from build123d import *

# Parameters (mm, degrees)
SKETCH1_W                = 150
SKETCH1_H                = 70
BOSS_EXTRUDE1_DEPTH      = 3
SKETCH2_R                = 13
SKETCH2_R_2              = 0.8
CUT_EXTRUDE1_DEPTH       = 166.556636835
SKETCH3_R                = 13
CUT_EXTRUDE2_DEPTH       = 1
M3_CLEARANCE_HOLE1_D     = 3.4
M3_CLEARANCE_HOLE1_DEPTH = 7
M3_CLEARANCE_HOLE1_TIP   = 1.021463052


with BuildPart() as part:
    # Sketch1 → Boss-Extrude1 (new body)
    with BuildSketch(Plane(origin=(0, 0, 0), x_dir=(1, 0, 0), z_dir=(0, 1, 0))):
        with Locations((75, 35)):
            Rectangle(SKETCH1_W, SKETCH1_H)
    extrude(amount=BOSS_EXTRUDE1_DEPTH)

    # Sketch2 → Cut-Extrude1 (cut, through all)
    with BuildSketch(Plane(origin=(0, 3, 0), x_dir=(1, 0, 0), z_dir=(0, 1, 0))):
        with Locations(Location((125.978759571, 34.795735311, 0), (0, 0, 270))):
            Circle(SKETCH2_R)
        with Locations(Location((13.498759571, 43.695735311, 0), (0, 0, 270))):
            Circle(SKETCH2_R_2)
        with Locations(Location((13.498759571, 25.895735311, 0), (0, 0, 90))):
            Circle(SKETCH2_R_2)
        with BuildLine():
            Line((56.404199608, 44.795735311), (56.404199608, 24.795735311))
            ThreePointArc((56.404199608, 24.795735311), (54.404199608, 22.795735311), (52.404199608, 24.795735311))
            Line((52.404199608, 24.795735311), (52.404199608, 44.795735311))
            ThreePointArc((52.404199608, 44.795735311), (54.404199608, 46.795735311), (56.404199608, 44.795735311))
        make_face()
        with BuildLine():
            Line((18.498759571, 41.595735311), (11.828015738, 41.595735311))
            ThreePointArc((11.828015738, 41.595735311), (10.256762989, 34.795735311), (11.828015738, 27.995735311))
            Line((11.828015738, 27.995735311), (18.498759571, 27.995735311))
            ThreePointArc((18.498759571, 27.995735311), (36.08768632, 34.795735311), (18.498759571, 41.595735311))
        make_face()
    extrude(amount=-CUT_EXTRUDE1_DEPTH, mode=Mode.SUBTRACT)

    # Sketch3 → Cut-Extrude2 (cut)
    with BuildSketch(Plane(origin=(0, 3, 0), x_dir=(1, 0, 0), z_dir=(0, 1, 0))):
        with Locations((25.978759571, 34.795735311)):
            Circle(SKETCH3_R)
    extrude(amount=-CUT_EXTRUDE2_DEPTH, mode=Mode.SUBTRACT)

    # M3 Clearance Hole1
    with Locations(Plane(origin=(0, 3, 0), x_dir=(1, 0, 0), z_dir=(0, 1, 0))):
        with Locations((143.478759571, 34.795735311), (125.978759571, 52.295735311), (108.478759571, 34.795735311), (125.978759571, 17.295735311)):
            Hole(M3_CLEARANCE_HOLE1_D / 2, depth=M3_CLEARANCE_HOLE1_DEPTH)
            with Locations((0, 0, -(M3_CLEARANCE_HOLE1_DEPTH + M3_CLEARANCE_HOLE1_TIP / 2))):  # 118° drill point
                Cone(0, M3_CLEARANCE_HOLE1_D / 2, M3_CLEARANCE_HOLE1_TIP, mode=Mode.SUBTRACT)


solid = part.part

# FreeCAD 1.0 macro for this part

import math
import FreeCAD as App
import Part
import Sketcher


def add_polygon(sketch, points):
    """Adds a closed chain of lines whose ends are joined by coincident constraints."""
    first, n = sketch.GeometryCount, len(points)
    for a, b in zip(points, points[1:] + points[:1]):
        sketch.addGeometry(Part.LineSegment(App.Vector(*a, 0), App.Vector(*b, 0)), False)
    for i in range(n):
        sketch.addConstraint(Sketcher.Constraint("Coincident", first + i, 2, first + (i + 1) % n, 1))

doc = App.newDocument("Part")
body = doc.addObject("PartDesign::Body", "Body")

# Sketch on XZ plane
sketch1 = body.newObject("Sketcher::SketchObject", "Sketch")
sketch1.AttachmentSupport = (doc.getObject("XZ_Plane"), [""])
sketch1.MapMode = "FlatFace"
add_polygon(sketch1, [(0, -70), (0, 0), (150, 0), (150, -70)])  # lines 0-3
sketch1.addConstraint(Sketcher.Constraint("Vertical", 0))
sketch1.addConstraint(Sketcher.Constraint("Horizontal", 1))
sketch1.addConstraint(Sketcher.Constraint("Vertical", 2))
sketch1.addConstraint(Sketcher.Constraint("Horizontal", 3))
sketch1.addConstraint(Sketcher.Constraint("Coincident", 0, 2, -1, 1))
sketch1.addConstraint(Sketcher.Constraint("DistanceX", 1, 1, 1, 2, 150.0))
sketch1.addConstraint(Sketcher.Constraint("DistanceY", 0, 1, 0, 2, 70.0))
pad1 = body.newObject("PartDesign::Pad", "Pad")
pad1.Profile = sketch1
pad1.Length = 3
pad1.Reversed = True

# Sketch on XZ plane
sketch2 = body.newObject("Sketcher::SketchObject", "Sketch001")
sketch2.AttachmentSupport = (doc.getObject("XZ_Plane"), [""])
sketch2.MapMode = "FlatFace"
sketch2.AttachmentOffset = App.Placement(App.Vector(0, 0, -3), App.Rotation())
sketch2.addGeometry(Part.Circle(App.Vector(126, -34.8, 0), App.Vector(0, 0, 1), 13), False)
sketch2.addGeometry(Part.Circle(App.Vector(13.5, -43.7, 0), App.Vector(0, 0, 1), 0.8), False)
sketch2.addGeometry(Part.Circle(App.Vector(13.5, -25.9, 0), App.Vector(0, 0, 1), 0.8), False)
sketch2.addGeometry(Part.LineSegment(App.Vector(56.4, -24.8, 0), App.Vector(56.4, -44.8, 0)), False)
sketch2.addGeometry(Part.ArcOfCircle(Part.Circle(App.Vector(54.4, -44.8, 0), App.Vector(0, 0, 1), 2), math.radians(180), math.radians(360)), False)
sketch2.addGeometry(Part.LineSegment(App.Vector(52.4, -44.8, 0), App.Vector(52.4, -24.8, 0)), False)
sketch2.addGeometry(Part.ArcOfCircle(Part.Circle(App.Vector(54.4, -24.8, 0), App.Vector(0, 0, 1), 2), math.radians(0), math.radians(180)), False)
sketch2.addGeometry(Part.LineSegment(App.Vector(18.5, -41.6, 0), App.Vector(11.8, -41.6, 0)), False)
sketch2.addGeometry(Part.ArcOfCircle(Part.Circle(App.Vector(25.8, -34.8, 0), App.Vector(0, 0, 1), 15.5), math.radians(154), math.radians(206)), False)
sketch2.addGeometry(Part.LineSegment(App.Vector(11.8, -28, 0), App.Vector(18.5, -28, 0)), False)
sketch2.addGeometry(Part.ArcOfCircle(Part.Circle(App.Vector(26, -34.8, 0), App.Vector(0, 0, 1), 10.1), math.radians(-138), math.radians(138)), False)
sketch2.addConstraint(Sketcher.Constraint("Tangent", 3, 2, 4, 2))
sketch2.addConstraint(Sketcher.Constraint("Tangent", 4, 1, 5, 1))
sketch2.addConstraint(Sketcher.Constraint("Tangent", 5, 2, 6, 2))
sketch2.addConstraint(Sketcher.Constraint("Tangent", 6, 1, 3, 1))
sketch2.addConstraint(Sketcher.Constraint("Coincident", 7, 2, 8, 2))
sketch2.addConstraint(Sketcher.Constraint("Coincident", 8, 1, 9, 1))
sketch2.addConstraint(Sketcher.Constraint("Coincident", 9, 2, 10, 2))
sketch2.addConstraint(Sketcher.Constraint("Coincident", 10, 1, 7, 1))
sketch2.addConstraint(Sketcher.Constraint("Vertical", 3))
sketch2.addConstraint(Sketcher.Constraint("Vertical", 5))
sketch2.addConstraint(Sketcher.Constraint("Horizontal", 7))
sketch2.addConstraint(Sketcher.Constraint("Horizontal", 9))
sketch2.addConstraint(Sketcher.Constraint("Equal", 1, 2))
sketch2.addConstraint(Sketcher.Constraint("Horizontal", 0, 3, 8, 3))
sketch2.addConstraint(Sketcher.Constraint("Horizontal", 8, 3, 10, 3))
sketch2.addConstraint(Sketcher.Constraint("Vertical", 1, 3, 2, 3))
sketch2.addConstraint(Sketcher.Constraint("Vertical", 7, 2, 8, 1))
sketch2.addConstraint(Sketcher.Constraint("Diameter", 0, 26.0))
sketch2.addConstraint(Sketcher.Constraint("Radius", 4, 2.0))
sketch2.addConstraint(Sketcher.Constraint("Diameter", 1, 1.6))
sketch2.addConstraint(Sketcher.Constraint("Radius", 8, 15.5))
sketch2.addConstraint(Sketcher.Constraint("DistanceY", 3, 2, 3, 1, 20.0))
sketch2.addConstraint(Sketcher.Constraint("DistanceY", 4, 3, 0, 3, 10.0))
sketch2.addConstraint(Sketcher.Constraint("DistanceX", 2, 3, 9, 2, 5.0))
sketch2.addConstraint(Sketcher.Constraint("DistanceY", 1, 3, 0, 3, 8.9))
sketch2.addConstraint(Sketcher.Constraint("DistanceY", 1, 3, 2, 3, 17.8))
sketch2.addConstraint(Sketcher.Constraint("DistanceY", 1, 3, 7, 2, 2.1))
sketch2.addConstraint(Sketcher.Constraint("DistanceX", 1, 3, 0, 3, 112.48))
sketch2.addConstraint(Sketcher.Constraint("DistanceX", 1, 3, 10, 3, 12.48))
sketch2.addConstraint(Sketcher.Constraint("DistanceX", -1, 1, 4, 3, 54.4042))
sketch2.addConstraint(Sketcher.Constraint("DistanceX", 7, 2, 7, 1, 6.670744))
sketch2.addConstraint(Sketcher.Constraint("DistanceX", -1, 1, 0, 3, 125.97876))
sketch2.addConstraint(Sketcher.Constraint("DistanceY", 0, 3, -1, 1, 34.795735))
pocket1 = body.newObject("PartDesign::Pocket", "Pocket")
pocket1.Profile = sketch2
pocket1.Type = "ThroughAll"
pocket1.Reversed = True

# Sketch on XZ plane
sketch3 = body.newObject("Sketcher::SketchObject", "Sketch002")
sketch3.AttachmentSupport = (doc.getObject("XZ_Plane"), [""])
sketch3.MapMode = "FlatFace"
sketch3.AttachmentOffset = App.Placement(App.Vector(0, 0, -3), App.Rotation())
sketch3.addGeometry(Part.Circle(App.Vector(26, -35, 0), App.Vector(0, 0, 1), 13), False)
sketch3.addConstraint(Sketcher.Constraint("Diameter", 0, 26.0))
sketch3.addConstraint(Sketcher.Constraint("DistanceX", -1, 1, 0, 3, 25.97876))
sketch3.addConstraint(Sketcher.Constraint("DistanceY", 0, 3, -1, 1, 34.795735))
pocket2 = body.newObject("PartDesign::Pocket", "Pocket001")
pocket2.Profile = sketch3
pocket2.Length = 1
pocket2.Reversed = True

# Sketch on XZ plane
sketch4 = body.newObject("Sketcher::SketchObject", "Sketch003")
sketch4.AttachmentSupport = (doc.getObject("XZ_Plane"), [""])
sketch4.MapMode = "FlatFace"
sketch4.AttachmentOffset = App.Placement(App.Vector(0, 0, -3), App.Rotation())
sketch4.addGeometry(Part.Circle(App.Vector(143.5, -34.8, 0), App.Vector(0, 0, 1), 1.7), False)
sketch4.addGeometry(Part.Circle(App.Vector(126, -52.3, 0), App.Vector(0, 0, 1), 1.7), False)
sketch4.addGeometry(Part.Circle(App.Vector(108.5, -34.8, 0), App.Vector(0, 0, 1), 1.7), False)
sketch4.addGeometry(Part.Circle(App.Vector(126, -17.3, 0), App.Vector(0, 0, 1), 1.7), False)
sketch4.addConstraint(Sketcher.Constraint("Equal", 0, 1))
sketch4.addConstraint(Sketcher.Constraint("Equal", 1, 2))
sketch4.addConstraint(Sketcher.Constraint("Equal", 2, 3))
sketch4.addConstraint(Sketcher.Constraint("Horizontal", 0, 3, 2, 3))
sketch4.addConstraint(Sketcher.Constraint("Vertical", 1, 3, 3, 3))
sketch4.addConstraint(Sketcher.Constraint("Diameter", 0, 3.4))
sketch4.addConstraint(Sketcher.Constraint("DistanceX", 2, 3, 0, 3, 35.0))
sketch4.addConstraint(Sketcher.Constraint("DistanceY", 1, 3, 3, 3, 35.0))
sketch4.addConstraint(Sketcher.Constraint("DistanceX", 1, 3, 0, 3, 17.5))
sketch4.addConstraint(Sketcher.Constraint("DistanceY", 1, 3, 0, 3, 17.5))
sketch4.addConstraint(Sketcher.Constraint("DistanceX", -1, 1, 0, 3, 143.47876))
sketch4.addConstraint(Sketcher.Constraint("DistanceY", 0, 3, -1, 1, 34.795735))
doc.recompute()
hole = body.newObject("PartDesign::Hole", "Hole")
hole.Profile = sketch4
hole.ThreadType = "None"
hole.Diameter = 3.4
hole.DepthType = "Dimension"
hole.Depth = 7
hole.DrillPoint = "Angled"
hole.DrillPointAngle = 118
hole.Reversed = True

doc.recompute()
